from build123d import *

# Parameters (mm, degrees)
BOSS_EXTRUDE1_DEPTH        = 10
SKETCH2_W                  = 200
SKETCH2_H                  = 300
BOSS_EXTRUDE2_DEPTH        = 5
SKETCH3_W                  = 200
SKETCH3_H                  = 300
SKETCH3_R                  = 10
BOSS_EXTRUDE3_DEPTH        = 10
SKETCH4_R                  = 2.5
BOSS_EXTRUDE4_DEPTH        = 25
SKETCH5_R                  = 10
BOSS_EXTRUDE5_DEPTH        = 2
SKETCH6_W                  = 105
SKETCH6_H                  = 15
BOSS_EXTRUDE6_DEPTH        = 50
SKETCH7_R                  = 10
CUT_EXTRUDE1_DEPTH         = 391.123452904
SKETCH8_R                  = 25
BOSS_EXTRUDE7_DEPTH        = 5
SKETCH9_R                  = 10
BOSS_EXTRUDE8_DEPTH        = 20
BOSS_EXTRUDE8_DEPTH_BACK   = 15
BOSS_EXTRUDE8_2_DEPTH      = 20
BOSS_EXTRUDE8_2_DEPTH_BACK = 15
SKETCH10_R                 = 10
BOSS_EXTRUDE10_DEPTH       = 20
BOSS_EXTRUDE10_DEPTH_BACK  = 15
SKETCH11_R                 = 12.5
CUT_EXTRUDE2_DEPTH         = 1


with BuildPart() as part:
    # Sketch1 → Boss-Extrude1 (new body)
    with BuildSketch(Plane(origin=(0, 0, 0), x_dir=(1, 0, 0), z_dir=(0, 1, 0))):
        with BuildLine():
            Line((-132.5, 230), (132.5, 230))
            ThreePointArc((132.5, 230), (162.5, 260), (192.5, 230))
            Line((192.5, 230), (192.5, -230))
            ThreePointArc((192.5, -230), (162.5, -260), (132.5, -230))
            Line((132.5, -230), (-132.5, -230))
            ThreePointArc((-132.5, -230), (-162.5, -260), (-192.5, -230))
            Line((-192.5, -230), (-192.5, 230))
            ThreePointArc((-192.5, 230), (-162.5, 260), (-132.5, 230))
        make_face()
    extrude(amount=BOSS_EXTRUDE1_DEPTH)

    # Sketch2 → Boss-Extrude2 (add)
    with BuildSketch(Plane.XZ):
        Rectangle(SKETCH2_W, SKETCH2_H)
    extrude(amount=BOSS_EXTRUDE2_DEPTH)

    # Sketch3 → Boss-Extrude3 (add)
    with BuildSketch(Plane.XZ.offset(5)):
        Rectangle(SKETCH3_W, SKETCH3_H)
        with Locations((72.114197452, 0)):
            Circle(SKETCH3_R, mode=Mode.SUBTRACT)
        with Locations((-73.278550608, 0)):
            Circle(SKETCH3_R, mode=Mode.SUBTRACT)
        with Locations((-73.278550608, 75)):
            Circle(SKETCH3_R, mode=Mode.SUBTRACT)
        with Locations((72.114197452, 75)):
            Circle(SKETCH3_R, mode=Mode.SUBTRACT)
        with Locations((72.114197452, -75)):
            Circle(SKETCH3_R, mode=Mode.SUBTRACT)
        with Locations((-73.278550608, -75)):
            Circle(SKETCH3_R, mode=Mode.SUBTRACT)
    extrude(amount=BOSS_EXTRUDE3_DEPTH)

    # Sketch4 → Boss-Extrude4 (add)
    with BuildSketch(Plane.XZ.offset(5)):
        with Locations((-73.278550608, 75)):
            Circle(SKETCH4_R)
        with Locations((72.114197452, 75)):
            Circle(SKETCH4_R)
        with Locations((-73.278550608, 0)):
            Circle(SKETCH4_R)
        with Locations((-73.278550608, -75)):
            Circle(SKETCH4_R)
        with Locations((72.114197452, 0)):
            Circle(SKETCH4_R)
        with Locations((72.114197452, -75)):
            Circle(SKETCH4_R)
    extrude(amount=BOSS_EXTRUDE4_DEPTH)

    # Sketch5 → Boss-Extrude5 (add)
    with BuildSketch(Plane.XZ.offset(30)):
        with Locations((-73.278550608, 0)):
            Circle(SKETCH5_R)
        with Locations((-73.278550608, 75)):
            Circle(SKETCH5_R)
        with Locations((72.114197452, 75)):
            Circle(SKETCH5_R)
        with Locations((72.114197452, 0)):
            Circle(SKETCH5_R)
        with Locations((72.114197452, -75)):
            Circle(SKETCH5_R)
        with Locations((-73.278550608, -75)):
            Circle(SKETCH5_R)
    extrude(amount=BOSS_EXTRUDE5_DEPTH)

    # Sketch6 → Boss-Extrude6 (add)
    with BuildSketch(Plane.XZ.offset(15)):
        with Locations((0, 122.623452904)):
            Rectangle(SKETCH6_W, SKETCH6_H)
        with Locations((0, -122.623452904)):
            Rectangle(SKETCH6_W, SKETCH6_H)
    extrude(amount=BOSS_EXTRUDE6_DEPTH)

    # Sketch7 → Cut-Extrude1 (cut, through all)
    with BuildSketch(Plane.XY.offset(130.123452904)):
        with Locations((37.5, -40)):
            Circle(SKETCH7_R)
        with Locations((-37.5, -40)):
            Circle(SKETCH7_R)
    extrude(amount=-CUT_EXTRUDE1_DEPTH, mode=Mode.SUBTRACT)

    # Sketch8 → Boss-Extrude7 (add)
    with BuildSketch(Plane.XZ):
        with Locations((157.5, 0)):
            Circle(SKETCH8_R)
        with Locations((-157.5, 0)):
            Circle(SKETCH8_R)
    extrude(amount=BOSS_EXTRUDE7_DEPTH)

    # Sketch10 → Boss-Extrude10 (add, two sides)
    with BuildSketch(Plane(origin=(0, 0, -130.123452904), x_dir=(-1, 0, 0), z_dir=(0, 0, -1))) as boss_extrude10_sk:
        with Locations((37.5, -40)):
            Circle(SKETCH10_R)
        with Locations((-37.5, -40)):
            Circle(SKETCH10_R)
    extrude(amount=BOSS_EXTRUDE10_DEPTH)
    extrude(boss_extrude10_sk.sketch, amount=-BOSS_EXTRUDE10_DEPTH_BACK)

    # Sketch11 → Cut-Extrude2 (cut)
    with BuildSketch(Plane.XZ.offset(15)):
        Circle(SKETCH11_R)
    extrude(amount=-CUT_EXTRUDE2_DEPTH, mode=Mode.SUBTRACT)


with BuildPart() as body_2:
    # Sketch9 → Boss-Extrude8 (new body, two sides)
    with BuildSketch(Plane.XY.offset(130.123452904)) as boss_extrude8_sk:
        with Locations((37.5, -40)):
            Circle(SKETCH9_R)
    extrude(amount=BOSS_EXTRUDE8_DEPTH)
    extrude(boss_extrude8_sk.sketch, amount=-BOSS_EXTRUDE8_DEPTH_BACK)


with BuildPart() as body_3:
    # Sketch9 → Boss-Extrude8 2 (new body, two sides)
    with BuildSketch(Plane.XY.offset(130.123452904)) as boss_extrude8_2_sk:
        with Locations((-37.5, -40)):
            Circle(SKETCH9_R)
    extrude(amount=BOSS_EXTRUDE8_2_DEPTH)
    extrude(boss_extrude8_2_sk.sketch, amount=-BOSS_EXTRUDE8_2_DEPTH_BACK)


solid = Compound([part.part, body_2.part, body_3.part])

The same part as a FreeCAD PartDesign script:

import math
import FreeCAD as App
import Part
import Sketcher
from FreeCAD import Vector

doc = App.newDocument("Part")
body = doc.addObject("PartDesign::Body", "Body")

# Sketch on XZ plane
sketch1 = body.newObject("Sketcher::SketchObject", "Sketch")
sketch1.AttachmentSupport = (doc.getObject("XZ_Plane"), [""])
sketch1.MapMode = "FlatFace"
sketch1.addGeometry(Part.LineSegment(Vector(132, -230, 0), Vector(-132, -230, 0)), False)
sketch1.addGeometry(Part.ArcOfCircle(Part.Circle(Vector(-162, -230, 0), Vector(0, 0, 1), 30), math.radians(180), math.radians(360)), False)
sketch1.addGeometry(Part.LineSegment(Vector(-192, -230, 0), Vector(-192, 230, 0)), False)
sketch1.addGeometry(Part.ArcOfCircle(Part.Circle(Vector(-162, 230, 0), Vector(0, 0, 1), 30), math.radians(0), math.radians(180)), False)
sketch1.addGeometry(Part.LineSegment(Vector(-132, 230, 0), Vector(132, 230, 0)), False)
sketch1.addGeometry(Part.ArcOfCircle(Part.Circle(Vector(162, 230, 0), Vector(0, 0, 1), 30), math.radians(0), math.radians(180)), False)
sketch1.addGeometry(Part.LineSegment(Vector(192, 230, 0), Vector(192, -230, 0)), False)
sketch1.addGeometry(Part.ArcOfCircle(Part.Circle(Vector(162, -230, 0), Vector(0, 0, 1), 30), math.radians(180), math.radians(360)), False)
sketch1.addConstraint(Sketcher.Constraint("Coincident", 0, 2, 1, 2))
sketch1.addConstraint(Sketcher.Constraint("Tangent", 1, 1, 2, 1))
sketch1.addConstraint(Sketcher.Constraint("Tangent", 2, 2, 3, 2))
sketch1.addConstraint(Sketcher.Constraint("Coincident", 3, 1, 4, 1))
sketch1.addConstraint(Sketcher.Constraint("Coincident", 4, 2, 5, 2))
sketch1.addConstraint(Sketcher.Constraint("Tangent", 5, 1, 6, 1))
sketch1.addConstraint(Sketcher.Constraint("Tangent", 6, 2, 7, 2))
sketch1.addConstraint(Sketcher.Constraint("Coincident", 7, 1, 0, 1))
sketch1.addConstraint(Sketcher.Constraint("Horizontal", 0))
sketch1.addConstraint(Sketcher.Constraint("Vertical", 2))
sketch1.addConstraint(Sketcher.Constraint("Horizontal", 4))
sketch1.addConstraint(Sketcher.Constraint("Vertical", 6))
sketch1.addConstraint(Sketcher.Constraint("Equal", 1, 3))
sketch1.addConstraint(Sketcher.Constraint("Equal", 3, 5))
sketch1.addConstraint(Sketcher.Constraint("Equal", 5, 7))
sketch1.addConstraint(Sketcher.Constraint("Symmetric", 1, 3, 5, 3, -1, 1))
sketch1.addConstraint(Sketcher.Constraint("Horizontal", 3, 3, 5, 3))
sketch1.addConstraint(Sketcher.Constraint("Horizontal", 1, 3, 7, 3))
sketch1.addConstraint(Sketcher.Constraint("Horizontal", 7, 3, 0, 2))
sketch1.addConstraint(Sketcher.Constraint("Horizontal", 2, 2, 3, 1))
sketch1.addConstraint(Sketcher.Constraint("Radius", 1, 30.0))
sketch1.addConstraint(Sketcher.Constraint("DistanceX", 0, 2, 0, 1, 265.0))
sketch1.addConstraint(Sketcher.Constraint("DistanceY", 2, 1, 2, 2, 460.0))
pad1 = body.newObject("PartDesign::Pad", "Pad")
pad1.Profile = sketch1
pad1.Length = 10
pad1.Reversed = True

# Sketch on XZ plane
sketch2 = body.newObject("Sketcher::SketchObject", "Sketch001")
sketch2.AttachmentSupport = (doc.getObject("XZ_Plane"), [""])
sketch2.MapMode = "FlatFace"
sketch2.addGeometry(Part.LineSegment(Vector(-100, 150, 0), Vector(-100, -150, 0)), False)
sketch2.addGeometry(Part.LineSegment(Vector(-100, -150, 0), Vector(100, -150, 0)), False)
sketch2.addGeometry(Part.LineSegment(Vector(100, -150, 0), Vector(100, 150, 0)), False)
sketch2.addGeometry(Part.LineSegment(Vector(100, 150, 0), Vector(-100, 150, 0)), False)
sketch2.addConstraint(Sketcher.Constraint("Coincident", 0, 2, 1, 1))
sketch2.addConstraint(Sketcher.Constraint("Coincident", 1, 2, 2, 1))
sketch2.addConstraint(Sketcher.Constraint("Coincident", 2, 2, 3, 1))
sketch2.addConstraint(Sketcher.Constraint("Coincident", 3, 2, 0, 1))
sketch2.addConstraint(Sketcher.Constraint("Vertical", 0))
sketch2.addConstraint(Sketcher.Constraint("Horizontal", 1))
sketch2.addConstraint(Sketcher.Constraint("Vertical", 2))
sketch2.addConstraint(Sketcher.Constraint("Horizontal", 3))
sketch2.addConstraint(Sketcher.Constraint("Symmetric", 0, 2, 2, 2, -1, 1))
sketch2.addConstraint(Sketcher.Constraint("DistanceX", 1, 1, 1, 2, 200.0))
sketch2.addConstraint(Sketcher.Constraint("DistanceY", 0, 2, 0, 1, 300.0))
pad2 = body.newObject("PartDesign::Pad", "Pad001")
pad2.Profile = sketch2
pad2.Length = 5

# Sketch on XZ plane
sketch3 = body.newObject("Sketcher::SketchObject", "Sketch002")
sketch3.AttachmentSupport = (doc.getObject("XZ_Plane"), [""])
sketch3.MapMode = "FlatFace"
sketch3.AttachmentOffset = App.Placement(Vector(0, 0, 5), App.Rotation())
sketch3.addGeometry(Part.LineSegment(Vector(-100, 150, 0), Vector(-100, -150, 0)), False)
sketch3.addGeometry(Part.LineSegment(Vector(-100, -150, 0), Vector(100, -150, 0)), False)
sketch3.addGeometry(Part.LineSegment(Vector(100, -150, 0), Vector(100, 150, 0)), False)
sketch3.addGeometry(Part.LineSegment(Vector(100, 150, 0), Vector(-100, 150, 0)), False)
sketch3.addGeometry(Part.Circle(Vector(-73, -75, 0), Vector(0, 0, 1), 10), False)
sketch3.addGeometry(Part.Circle(Vector(72, -75, 0), Vector(0, 0, 1), 10), False)
sketch3.addGeometry(Part.Circle(Vector(-73, 0, 0), Vector(0, 0, 1), 10), False)
sketch3.addGeometry(Part.Circle(Vector(-73, 75, 0), Vector(0, 0, 1), 10), False)
sketch3.addGeometry(Part.Circle(Vector(72, 0, 0), Vector(0, 0, 1), 10), False)
sketch3.addGeometry(Part.Circle(Vector(72, 75, 0), Vector(0, 0, 1), 10), False)
sketch3.addConstraint(Sketcher.Constraint("Coincident", 0, 2, 1, 1))
sketch3.addConstraint(Sketcher.Constraint("Coincident", 1, 2, 2, 1))
sketch3.addConstraint(Sketcher.Constraint("Coincident", 2, 2, 3, 1))
sketch3.addConstraint(Sketcher.Constraint("Coincident", 3, 2, 0, 1))
sketch3.addConstraint(Sketcher.Constraint("Vertical", 0))
sketch3.addConstraint(Sketcher.Constraint("Horizontal", 1))
sketch3.addConstraint(Sketcher.Constraint("Vertical", 2))
sketch3.addConstraint(Sketcher.Constraint("Horizontal", 3))
sketch3.addConstraint(Sketcher.Constraint("Equal", 4, 5))
sketch3.addConstraint(Sketcher.Constraint("Equal", 5, 6))
sketch3.addConstraint(Sketcher.Constraint("Equal", 6, 7))
sketch3.addConstraint(Sketcher.Constraint("Equal", 7, 8))
sketch3.addConstraint(Sketcher.Constraint("Equal", 8, 9))
sketch3.addConstraint(Sketcher.Constraint("Symmetric", 0, 2, 2, 2, -1, 1))
sketch3.addConstraint(Sketcher.Constraint("Symmetric", 4, 3, 7, 3, -1))
sketch3.addConstraint(Sketcher.Constraint("Symmetric", 5, 3, 9, 3, -1))
sketch3.addConstraint(Sketcher.Constraint("PointOnObject", 6, 3, -1))
sketch3.addConstraint(Sketcher.Constraint("PointOnObject", 8, 3, -1))
sketch3.addConstraint(Sketcher.Constraint("Horizontal", 4, 3, 5, 3))
sketch3.addConstraint(Sketcher.Constraint("Vertical", 4, 3, 6, 3))
sketch3.addConstraint(Sketcher.Constraint("Vertical", 5, 3, 8, 3))
sketch3.addConstraint(Sketcher.Constraint("Diameter", 4, 20.0))
sketch3.addConstraint(Sketcher.Constraint("DistanceX", 1, 1, 1, 2, 200.0))
sketch3.addConstraint(Sketcher.Constraint("DistanceY", 0, 2, 0, 1, 300.0))
sketch3.addConstraint(Sketcher.Constraint("DistanceY", 4, 3, -1, 1, 75.0))
sketch3.addConstraint(Sketcher.Constraint("DistanceX", 4, 3, -1, 1, 73.278551))
sketch3.addConstraint(Sketcher.Constraint("DistanceX", 4, 3, 5, 3, 145.392748))
pad3 = body.newObject("PartDesign::Pad", "Pad002")
pad3.Profile = sketch3
pad3.Length = 10

# Sketch on XZ plane
sketch4 = body.newObject("Sketcher::SketchObject", "Sketch003")
sketch4.AttachmentSupport = (doc.getObject("XZ_Plane"), [""])
sketch4.MapMode = "FlatFace"
sketch4.AttachmentOffset = App.Placement(Vector(0, 0, 5), App.Rotation())
sketch4.addGeometry(Part.Circle(Vector(-73.3, 75, 0), Vector(0, 0, 1), 2.5), False)
sketch4.addGeometry(Part.Circle(Vector(72.1, 75, 0), Vector(0, 0, 1), 2.5), False)
sketch4.addGeometry(Part.Circle(Vector(-73.3, 0, 0), Vector(0, 0, 1), 2.5), False)
sketch4.addGeometry(Part.Circle(Vector(-73.3, -75, 0), Vector(0, 0, 1), 2.5), False)
sketch4.addGeometry(Part.Circle(Vector(72.1, 0, 0), Vector(0, 0, 1), 2.5), False)
sketch4.addGeometry(Part.Circle(Vector(72.1, -75, 0), Vector(0, 0, 1), 2.5), False)
sketch4.addConstraint(Sketcher.Constraint("Equal", 0, 1))
sketch4.addConstraint(Sketcher.Constraint("Equal", 1, 2))
sketch4.addConstraint(Sketcher.Constraint("Equal", 2, 3))
sketch4.addConstraint(Sketcher.Constraint("Equal", 3, 4))
sketch4.addConstraint(Sketcher.Constraint("Equal", 4, 5))
sketch4.addConstraint(Sketcher.Constraint("Symmetric", 0, 3, 3, 3, -1))
sketch4.addConstraint(Sketcher.Constraint("Symmetric", 1, 3, 5, 3, -1))
sketch4.addConstraint(Sketcher.Constraint("PointOnObject", 2, 3, -1))
sketch4.addConstraint(Sketcher.Constraint("PointOnObject", 4, 3, -1))
sketch4.addConstraint(Sketcher.Constraint("Horizontal", 0, 3, 1, 3))
sketch4.addConstraint(Sketcher.Constraint("Vertical", 0, 3, 2, 3))
sketch4.addConstraint(Sketcher.Constraint("Vertical", 1, 3, 4, 3))
sketch4.addConstraint(Sketcher.Constraint("Diameter", 0, 5.0))
sketch4.addConstraint(Sketcher.Constraint("DistanceY", -1, 1, 0, 3, 75.0))
sketch4.addConstraint(Sketcher.Constraint("DistanceX", 0, 3, -1, 1, 73.278551))
sketch4.addConstraint(Sketcher.Constraint("DistanceX", 0, 3, 1, 3, 145.392748))
pad4 = body.newObject("PartDesign::Pad", "Pad003")
pad4.Profile = sketch4
pad4.Length = 25

# Sketch on XZ plane
sketch5 = body.newObject("Sketcher::SketchObject", "Sketch004")
sketch5.AttachmentSupport = (doc.getObject("XZ_Plane"), [""])
sketch5.MapMode = "FlatFace"
sketch5.AttachmentOffset = App.Placement(Vector(0, 0, 30), App.Rotation())
sketch5.addGeometry(Part.Circle(Vector(-73, 0, 0), Vector(0, 0, 1), 10), False)
sketch5.addGeometry(Part.Circle(Vector(-73, 75, 0), Vector(0, 0, 1), 10), False)
sketch5.addGeometry(Part.Circle(Vector(72, 75, 0), Vector(0, 0, 1), 10), False)
sketch5.addGeometry(Part.Circle(Vector(72, 0, 0), Vector(0, 0, 1), 10), False)
sketch5.addGeometry(Part.Circle(Vector(72, -75, 0), Vector(0, 0, 1), 10), False)
sketch5.addGeometry(Part.Circle(Vector(-73, -75, 0), Vector(0, 0, 1), 10), False)
sketch5.addConstraint(Sketcher.Constraint("Equal", 0, 1))
sketch5.addConstraint(Sketcher.Constraint("Equal", 1, 2))
sketch5.addConstraint(Sketcher.Constraint("Equal", 2, 3))
sketch5.addConstraint(Sketcher.Constraint("Equal", 3, 4))
sketch5.addConstraint(Sketcher.Constraint("Equal", 4, 5))
sketch5.addConstraint(Sketcher.Constraint("Symmetric", 2, 3, 4, 3, -1))
sketch5.addConstraint(Sketcher.Constraint("Symmetric", 1, 3, 5, 3, -1))
sketch5.addConstraint(Sketcher.Constraint("PointOnObject", 0, 3, -1))
sketch5.addConstraint(Sketcher.Constraint("PointOnObject", 3, 3, -1))
sketch5.addConstraint(Sketcher.Constraint("Horizontal", 1, 3, 2, 3))
sketch5.addConstraint(Sketcher.Constraint("Vertical", 0, 3, 1, 3))
sketch5.addConstraint(Sketcher.Constraint("Vertical", 2, 3, 3, 3))
sketch5.addConstraint(Sketcher.Constraint("Diameter", 0, 20.0))
sketch5.addConstraint(Sketcher.Constraint("DistanceY", -1, 1, 1, 3, 75.0))
sketch5.addConstraint(Sketcher.Constraint("DistanceX", 0, 3, -1, 1, 73.278551))
sketch5.addConstraint(Sketcher.Constraint("DistanceX", 1, 3, 2, 3, 145.392748))
pad5 = body.newObject("PartDesign::Pad", "Pad004")
pad5.Profile = sketch5
pad5.Length = 2

# Sketch on XZ plane
sketch6 = body.newObject("Sketcher::SketchObject", "Sketch005")
sketch6.AttachmentSupport = (doc.getObject("XZ_Plane"), [""])
sketch6.MapMode = "FlatFace"
sketch6.AttachmentOffset = App.Placement(Vector(0, 0, 15), App.Rotation())
sketch6.addGeometry(Part.LineSegment(Vector(-52, 130, 0), Vector(-52, 115, 0)), False)
sketch6.addGeometry(Part.LineSegment(Vector(-52, 115, 0), Vector(52, 115, 0)), False)
sketch6.addGeometry(Part.LineSegment(Vector(52, 115, 0), Vector(52, 130, 0)), False)
sketch6.addGeometry(Part.LineSegment(Vector(52, 130, 0), Vector(-52, 130, 0)), False)
sketch6.addGeometry(Part.LineSegment(Vector(-52, -115, 0), Vector(-52, -130, 0)), False)
sketch6.addGeometry(Part.LineSegment(Vector(-52, -130, 0), Vector(52, -130, 0)), False)
sketch6.addGeometry(Part.LineSegment(Vector(52, -130, 0), Vector(52, -115, 0)), False)
sketch6.addGeometry(Part.LineSegment(Vector(52, -115, 0), Vector(-52, -115, 0)), False)
sketch6.addConstraint(Sketcher.Constraint("Coincident", 0, 2, 1, 1))
sketch6.addConstraint(Sketcher.Constraint("Coincident", 1, 2, 2, 1))
sketch6.addConstraint(Sketcher.Constraint("Coincident", 2, 2, 3, 1))
sketch6.addConstraint(Sketcher.Constraint("Coincident", 3, 2, 0, 1))
sketch6.addConstraint(Sketcher.Constraint("Coincident", 4, 2, 5, 1))
sketch6.addConstraint(Sketcher.Constraint("Coincident", 5, 2, 6, 1))
sketch6.addConstraint(Sketcher.Constraint("Coincident", 6, 2, 7, 1))
sketch6.addConstraint(Sketcher.Constraint("Coincident", 7, 2, 4, 1))
sketch6.addConstraint(Sketcher.Constraint("Vertical", 0))
sketch6.addConstraint(Sketcher.Constraint("Horizontal", 1))
sketch6.addConstraint(Sketcher.Constraint("Vertical", 2))
sketch6.addConstraint(Sketcher.Constraint("Horizontal", 3))
sketch6.addConstraint(Sketcher.Constraint("Vertical", 4))
sketch6.addConstraint(Sketcher.Constraint("Horizontal", 5))
sketch6.addConstraint(Sketcher.Constraint("Vertical", 6))
sketch6.addConstraint(Sketcher.Constraint("Horizontal", 7))
sketch6.addConstraint(Sketcher.Constraint("Symmetric", 2, 2, 4, 2, -1, 1))
sketch6.addConstraint(Sketcher.Constraint("Symmetric", 0, 2, 6, 2, -1, 1))
sketch6.addConstraint(Sketcher.Constraint("Vertical", 3, 2, 4, 2))
sketch6.addConstraint(Sketcher.Constraint("DistanceX", 1, 1, 1, 2, 105.0))
sketch6.addConstraint(Sketcher.Constraint("DistanceY", 0, 2, 0, 1, 15.0))
sketch6.addConstraint(Sketcher.Constraint("DistanceY", -1, 1, 0, 2, 115.123453))
pad6 = body.newObject("PartDesign::Pad", "Pad005")
pad6.Profile = sketch6
pad6.Length = 50

# Sketch on XY plane
sketch7 = body.newObject("Sketcher::SketchObject", "Sketch006")
sketch7.AttachmentSupport = (doc.getObject("XY_Plane"), [""])
sketch7.MapMode = "FlatFace"
sketch7.AttachmentOffset = App.Placement(Vector(0, 0, 130.123453), App.Rotation())
sketch7.addGeometry(Part.Circle(Vector(38, -40, 0), Vector(0, 0, 1), 10), False)
sketch7.addGeometry(Part.Circle(Vector(-38, -40, 0), Vector(0, 0, 1), 10), False)
sketch7.addConstraint(Sketcher.Constraint("Equal", 0, 1))
sketch7.addConstraint(Sketcher.Constraint("Symmetric", 0, 3, 1, 3, -2))
sketch7.addConstraint(Sketcher.Constraint("Diameter", 0, 20.0))
sketch7.addConstraint(Sketcher.Constraint("DistanceY", 0, 3, -1, 1, 40.0))
sketch7.addConstraint(Sketcher.Constraint("DistanceX", 1, 3, 0, 3, 75.0))
pocket1 = body.newObject("PartDesign::Pocket", "Pocket")
pocket1.Profile = sketch7
pocket1.Type = "ThroughAll"

# Sketch on XZ plane
sketch8 = body.newObject("Sketcher::SketchObject", "Sketch007")
sketch8.AttachmentSupport = (doc.getObject("XZ_Plane"), [""])
sketch8.MapMode = "FlatFace"
sketch8.addGeometry(Part.Circle(Vector(158, 0, 0), Vector(0, 0, 1), 25), False)
sketch8.addGeometry(Part.Circle(Vector(-158, 0, 0), Vector(0, 0, 1), 25), False)
sketch8.addConstraint(Sketcher.Constraint("Equal", 0, 1))
sketch8.addConstraint(Sketcher.Constraint("Symmetric", 0, 3, 1, 3, -1, 1))
sketch8.addConstraint(Sketcher.Constraint("PointOnObject", 0, 3, -1))
sketch8.addConstraint(Sketcher.Constraint("Diameter", 0, 50.0))
sketch8.addConstraint(Sketcher.Constraint("DistanceX", 1, 3, 0, 3, 315.0))
pad7 = body.newObject("PartDesign::Pad", "Pad006")
pad7.Profile = sketch8
pad7.Length = 5

# Sketch on XY plane
sketch9 = body.newObject("Sketcher::SketchObject", "Sketch008")
sketch9.AttachmentSupport = (doc.getObject("XY_Plane"), [""])
sketch9.MapMode = "FlatFace"
sketch9.AttachmentOffset = App.Placement(Vector(0, 0, -130.123453), App.Rotation())
sketch9.addGeometry(Part.Circle(Vector(-38, -40, 0), Vector(0, 0, 1), 10), False)
sketch9.addGeometry(Part.Circle(Vector(38, -40, 0), Vector(0, 0, 1), 10), False)
sketch9.addConstraint(Sketcher.Constraint("Equal", 0, 1))
sketch9.addConstraint(Sketcher.Constraint("Symmetric", 0, 3, 1, 3, -2))
sketch9.addConstraint(Sketcher.Constraint("Diameter", 0, 20.0))
sketch9.addConstraint(Sketcher.Constraint("DistanceY", 0, 3, -1, 1, 40.0))
sketch9.addConstraint(Sketcher.Constraint("DistanceX", 0, 3, 1, 3, 75.0))
pad8 = body.newObject("PartDesign::Pad", "Pad007")
pad8.Profile = sketch9
pad8.Type = "TwoLengths"
pad8.Length = 20
pad8.Length2 = 15
pad8.Reversed = True

# Sketch on XZ plane
sketch10 = body.newObject("Sketcher::SketchObject", "Sketch009")
sketch10.AttachmentSupport = (doc.getObject("XZ_Plane"), [""])
sketch10.MapMode = "FlatFace"
sketch10.AttachmentOffset = App.Placement(Vector(0, 0, 15), App.Rotation())
sketch10.addGeometry(Part.Circle(Vector(0, 0, 0), Vector(0, 0, 1), 12), False)
sketch10.addConstraint(Sketcher.Constraint("Coincident", 0, 3, -1, 1))
sketch10.addConstraint(Sketcher.Constraint("Diameter", 0, 25.0))
pocket2 = body.newObject("PartDesign::Pocket", "Pocket001")
pocket2.Profile = sketch10
pocket2.Length = 1
body2 = doc.addObject("PartDesign::Body", "Body001")

# Sketch on XY plane
sketch11 = body2.newObject("Sketcher::SketchObject", "Sketch010")
sketch11.AttachmentSupport = (doc.getObject("XY_Plane001"), [""])
sketch11.MapMode = "FlatFace"
sketch11.AttachmentOffset = App.Placement(Vector(0, 0, 130.123453), App.Rotation())
sketch11.addGeometry(Part.Circle(Vector(38, -40, 0), Vector(0, 0, 1), 10), False)
sketch11.addConstraint(Sketcher.Constraint("Diameter", 0, 20.0))
sketch11.addConstraint(Sketcher.Constraint("DistanceY", 0, 3, -1, 1, 40.0))
sketch11.addConstraint(Sketcher.Constraint("DistanceX", -1, 1, 0, 3, 37.5))
pad9 = body2.newObject("PartDesign::Pad", "Pad008")
pad9.Profile = sketch11
pad9.Type = "TwoLengths"
pad9.Length = 20
pad9.Length2 = 15
body3 = doc.addObject("PartDesign::Body", "Body002")

# Sketch on XY plane
sketch12 = body3.newObject("Sketcher::SketchObject", "Sketch011")
sketch12.AttachmentSupport = (doc.getObject("XY_Plane002"), [""])
sketch12.MapMode = "FlatFace"
sketch12.AttachmentOffset = App.Placement(Vector(0, 0, 130.123453), App.Rotation())
sketch12.addGeometry(Part.Circle(Vector(-38, -40, 0), Vector(0, 0, 1), 10), False)
sketch12.addConstraint(Sketcher.Constraint("Diameter", 0, 20.0))
sketch12.addConstraint(Sketcher.Constraint("DistanceY", 0, 3, -1, 1, 40.0))
sketch12.addConstraint(Sketcher.Constraint("DistanceX", 0, 3, -1, 1, 37.5))
pad10 = body3.newObject("PartDesign::Pad", "Pad009")
pad10.Profile = sketch12
pad10.Type = "TwoLengths"
pad10.Length = 20
pad10.Length2 = 15

doc.recompute()
